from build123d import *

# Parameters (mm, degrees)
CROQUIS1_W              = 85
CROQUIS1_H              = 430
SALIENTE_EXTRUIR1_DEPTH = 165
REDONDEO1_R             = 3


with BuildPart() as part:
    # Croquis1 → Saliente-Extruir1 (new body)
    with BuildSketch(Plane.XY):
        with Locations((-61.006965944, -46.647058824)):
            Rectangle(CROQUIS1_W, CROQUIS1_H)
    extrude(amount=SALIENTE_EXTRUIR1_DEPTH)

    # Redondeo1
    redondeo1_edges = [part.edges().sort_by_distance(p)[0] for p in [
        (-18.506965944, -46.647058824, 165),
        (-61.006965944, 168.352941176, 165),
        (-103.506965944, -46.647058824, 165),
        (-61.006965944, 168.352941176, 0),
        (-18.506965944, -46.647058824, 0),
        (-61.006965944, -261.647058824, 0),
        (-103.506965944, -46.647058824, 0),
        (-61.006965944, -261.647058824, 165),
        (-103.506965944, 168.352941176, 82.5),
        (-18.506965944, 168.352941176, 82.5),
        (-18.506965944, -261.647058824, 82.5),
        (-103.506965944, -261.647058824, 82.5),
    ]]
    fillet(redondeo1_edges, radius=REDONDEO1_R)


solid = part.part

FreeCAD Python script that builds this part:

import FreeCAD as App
import Part
import Sketcher
from FreeCAD import Vector
Q = App.Units.Quantity

doc = App.newDocument("Part")
body = doc.addObject("PartDesign::Body", "Body")

sketch1 = doc.addObject("Sketcher::SketchObject", "Sketch")
body.addObject(sketch1)
sketch1.AttachmentSupport = (doc.XY_Plane, [""])
sketch1.MapMode = "FlatFace"
sketch1.addGeometry([
    Part.LineSegment(Vector(-104, 168, 0), Vector(-104, -262, 0)),
    Part.LineSegment(Vector(-104, -262, 0), Vector(-19, -262, 0)),
    Part.LineSegment(Vector(-19, -262, 0), Vector(-19, 168, 0)),
    Part.LineSegment(Vector(-19, 168, 0), Vector(-104, 168, 0)),
], False)
sketch1.addConstraint([
    Sketcher.Constraint("Coincident", 0, 2, 1, 1),
    Sketcher.Constraint("Coincident", 1, 2, 2, 1),
    Sketcher.Constraint("Coincident", 2, 2, 3, 1),
    Sketcher.Constraint("Coincident", 3, 2, 0, 1),
    Sketcher.Constraint("Vertical", 0),
    Sketcher.Constraint("Horizontal", 1),
    Sketcher.Constraint("Vertical", 2),
    Sketcher.Constraint("Horizontal", 3),
    Sketcher.Constraint("DistanceX", 1, 1, 1, 2, Q("85 mm")),
    Sketcher.Constraint("DistanceY", 0, 2, 0, 1, Q("430 mm")),
    Sketcher.Constraint("DistanceY", 0, 2, -1, 1, Q("261.647059 mm")),
    Sketcher.Constraint("DistanceX", 0, 2, -1, 1, Q("103.506966 mm")),
])
pad1 = doc.addObject("PartDesign::Pad", "Pad")
body.addObject(pad1)
pad1.Profile = sketch1
pad1.Length = 165
doc.recompute()

fillet = doc.addObject("PartDesign::Fillet", "Fillet")
body.addObject(fillet)
fillet.Base = (pad1, ["Edge1"])
fillet.UseAllEdges = True
fillet.Radius = 3

doc.recompute()
